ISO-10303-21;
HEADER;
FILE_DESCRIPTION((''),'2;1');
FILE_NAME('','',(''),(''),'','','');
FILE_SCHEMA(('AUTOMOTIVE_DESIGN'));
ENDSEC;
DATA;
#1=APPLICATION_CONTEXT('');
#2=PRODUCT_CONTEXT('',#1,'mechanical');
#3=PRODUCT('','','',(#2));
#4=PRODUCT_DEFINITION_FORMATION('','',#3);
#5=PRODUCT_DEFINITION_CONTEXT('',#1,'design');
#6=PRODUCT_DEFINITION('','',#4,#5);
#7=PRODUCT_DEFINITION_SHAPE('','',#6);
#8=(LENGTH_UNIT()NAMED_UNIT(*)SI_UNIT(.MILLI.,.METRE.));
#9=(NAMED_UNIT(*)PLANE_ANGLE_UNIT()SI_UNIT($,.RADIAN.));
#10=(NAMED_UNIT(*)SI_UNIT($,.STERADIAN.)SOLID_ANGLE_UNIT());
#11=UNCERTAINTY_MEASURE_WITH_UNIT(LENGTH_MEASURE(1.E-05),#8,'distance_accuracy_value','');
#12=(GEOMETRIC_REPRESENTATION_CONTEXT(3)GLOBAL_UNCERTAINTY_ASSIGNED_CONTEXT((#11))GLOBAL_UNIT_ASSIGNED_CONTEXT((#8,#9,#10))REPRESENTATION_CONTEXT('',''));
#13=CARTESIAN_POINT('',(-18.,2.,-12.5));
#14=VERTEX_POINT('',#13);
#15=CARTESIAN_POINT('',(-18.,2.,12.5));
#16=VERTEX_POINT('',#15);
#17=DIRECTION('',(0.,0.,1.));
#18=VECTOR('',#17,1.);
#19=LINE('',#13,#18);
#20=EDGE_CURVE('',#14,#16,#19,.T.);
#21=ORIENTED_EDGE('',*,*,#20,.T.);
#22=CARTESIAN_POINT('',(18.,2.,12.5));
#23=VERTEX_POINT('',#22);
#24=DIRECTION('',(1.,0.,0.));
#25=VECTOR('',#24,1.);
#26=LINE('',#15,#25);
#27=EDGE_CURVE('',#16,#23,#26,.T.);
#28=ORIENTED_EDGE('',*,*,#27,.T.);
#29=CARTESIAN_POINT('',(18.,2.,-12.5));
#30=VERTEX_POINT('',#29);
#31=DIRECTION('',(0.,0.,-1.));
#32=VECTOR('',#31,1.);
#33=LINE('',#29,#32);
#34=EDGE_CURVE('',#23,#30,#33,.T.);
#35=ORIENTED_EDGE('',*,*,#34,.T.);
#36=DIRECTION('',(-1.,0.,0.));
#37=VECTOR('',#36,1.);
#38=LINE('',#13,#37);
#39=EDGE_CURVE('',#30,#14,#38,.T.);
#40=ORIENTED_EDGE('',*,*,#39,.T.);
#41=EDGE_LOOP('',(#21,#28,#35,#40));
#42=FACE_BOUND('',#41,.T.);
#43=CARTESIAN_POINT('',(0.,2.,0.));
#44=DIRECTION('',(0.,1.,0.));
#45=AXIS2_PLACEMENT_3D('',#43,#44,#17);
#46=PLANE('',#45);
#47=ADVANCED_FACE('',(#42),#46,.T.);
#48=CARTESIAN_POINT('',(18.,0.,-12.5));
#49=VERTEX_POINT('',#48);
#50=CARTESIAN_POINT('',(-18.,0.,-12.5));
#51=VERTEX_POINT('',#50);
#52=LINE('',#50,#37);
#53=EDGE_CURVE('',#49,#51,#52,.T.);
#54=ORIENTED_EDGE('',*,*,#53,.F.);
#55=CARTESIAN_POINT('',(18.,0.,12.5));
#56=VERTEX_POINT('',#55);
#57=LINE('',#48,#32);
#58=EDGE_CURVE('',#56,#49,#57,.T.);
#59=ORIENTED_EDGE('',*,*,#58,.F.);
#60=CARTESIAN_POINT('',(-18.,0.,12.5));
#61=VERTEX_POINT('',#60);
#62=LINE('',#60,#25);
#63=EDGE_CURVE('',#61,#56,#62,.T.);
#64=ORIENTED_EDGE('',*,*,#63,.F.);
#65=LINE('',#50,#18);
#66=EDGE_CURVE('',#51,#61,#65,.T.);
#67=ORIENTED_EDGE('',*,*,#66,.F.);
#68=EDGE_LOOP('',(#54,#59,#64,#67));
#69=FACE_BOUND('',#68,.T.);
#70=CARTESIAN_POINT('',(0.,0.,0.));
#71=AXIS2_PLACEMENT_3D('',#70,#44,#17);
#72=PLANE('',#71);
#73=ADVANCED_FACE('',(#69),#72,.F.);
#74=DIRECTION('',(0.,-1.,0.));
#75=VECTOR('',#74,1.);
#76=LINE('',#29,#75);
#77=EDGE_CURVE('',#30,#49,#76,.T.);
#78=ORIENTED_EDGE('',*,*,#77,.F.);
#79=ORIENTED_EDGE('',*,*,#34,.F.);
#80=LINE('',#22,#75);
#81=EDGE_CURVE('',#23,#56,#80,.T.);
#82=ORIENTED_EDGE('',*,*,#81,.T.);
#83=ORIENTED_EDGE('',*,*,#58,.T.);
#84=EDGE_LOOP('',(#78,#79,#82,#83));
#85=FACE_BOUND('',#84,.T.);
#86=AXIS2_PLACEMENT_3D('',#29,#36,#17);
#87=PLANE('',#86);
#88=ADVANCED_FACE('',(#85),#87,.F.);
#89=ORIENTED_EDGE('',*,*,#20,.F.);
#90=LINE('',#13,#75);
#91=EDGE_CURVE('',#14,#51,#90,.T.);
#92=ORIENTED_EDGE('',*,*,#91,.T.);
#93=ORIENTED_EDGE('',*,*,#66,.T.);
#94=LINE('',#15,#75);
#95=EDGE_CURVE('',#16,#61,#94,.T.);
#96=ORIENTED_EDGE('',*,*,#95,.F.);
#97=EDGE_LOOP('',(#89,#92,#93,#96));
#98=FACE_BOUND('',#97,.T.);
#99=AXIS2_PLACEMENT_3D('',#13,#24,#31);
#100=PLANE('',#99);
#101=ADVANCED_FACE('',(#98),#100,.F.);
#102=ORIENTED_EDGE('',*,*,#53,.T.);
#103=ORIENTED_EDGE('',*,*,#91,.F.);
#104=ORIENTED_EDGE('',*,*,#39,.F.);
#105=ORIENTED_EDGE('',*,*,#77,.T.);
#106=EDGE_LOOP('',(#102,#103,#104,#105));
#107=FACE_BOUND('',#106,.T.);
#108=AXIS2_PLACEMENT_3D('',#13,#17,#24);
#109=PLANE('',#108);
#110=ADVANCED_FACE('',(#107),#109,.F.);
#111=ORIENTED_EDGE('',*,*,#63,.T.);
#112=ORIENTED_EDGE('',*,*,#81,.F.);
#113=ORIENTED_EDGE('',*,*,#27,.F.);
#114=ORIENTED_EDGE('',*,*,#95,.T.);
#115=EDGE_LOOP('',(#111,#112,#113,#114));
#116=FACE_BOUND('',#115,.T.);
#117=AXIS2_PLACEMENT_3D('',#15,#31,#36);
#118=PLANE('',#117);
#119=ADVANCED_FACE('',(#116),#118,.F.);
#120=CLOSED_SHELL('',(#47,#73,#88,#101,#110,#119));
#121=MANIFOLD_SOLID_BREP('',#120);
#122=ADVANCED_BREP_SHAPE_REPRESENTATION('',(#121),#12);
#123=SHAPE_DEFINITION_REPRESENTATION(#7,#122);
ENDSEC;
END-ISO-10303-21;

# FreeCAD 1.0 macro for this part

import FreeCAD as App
import Part
import Sketcher
from FreeCAD import Vector


def add_polygon(sketch, points):
    """Adds a closed chain of lines whose ends are joined by coincident constraints."""
    first, n = sketch.GeometryCount, len(points)
    for a, b in zip(points, points[1:] + points[:1]):
        sketch.addGeometry(Part.LineSegment(App.Vector(*a, 0), App.Vector(*b, 0)), False)
    for i in range(n):
        sketch.addConstraint(Sketcher.Constraint("Coincident", first + i, 2, first + (i + 1) % n, 1))

doc = App.newDocument("Part")
params = doc.addObject("Spreadsheet::Sheet", "Params")
for row, (alias, value) in enumerate([
    ("sketch1_width", "36 mm"),
    ("sketch1_height", "25 mm"),
    ("pad1_length", "2 mm"),
], start=1):
    params.set(f"A{row}", alias)
    params.set(f"B{row}", "=" + value)
    params.setAlias(f"B{row}", alias)

body = doc.addObject("PartDesign::Body", "Body")

# Sketch on XZ plane
sketch1 = doc.addObject("Sketcher::SketchObject", "Sketch")
body.addObject(sketch1)
sketch1.AttachmentSupport = (doc.XZ_Plane, [""])
sketch1.MapMode = "FlatFace"
add_polygon(sketch1, [(-18, -12), (-18, 12), (18, 12), (18, -12)])  # lines 0-3
sketch1.addConstraint([
    Sketcher.Constraint("Vertical", 0),
    Sketcher.Constraint("Horizontal", 1),
    Sketcher.Constraint("Vertical", 2),
    Sketcher.Constraint("Horizontal", 3),
    Sketcher.Constraint("Symmetric", 0, 2, 2, 2, -1, 1),
    Sketcher.Constraint("DistanceX", 1, 1, 1, 2, 36.0),
    Sketcher.Constraint("DistanceY", 0, 1, 0, 2, 25.0),
])
sketch1.setExpression("Constraints[9]", "Params.sketch1_width")
sketch1.setExpression("Constraints[10]", "Params.sketch1_height")
pad1 = doc.addObject("PartDesign::Pad", "Pad")
body.addObject(pad1)
pad1.Profile = sketch1
pad1.setExpression("Length", "Params.pad1_length")
pad1.Reversed = True

doc.recompute()
